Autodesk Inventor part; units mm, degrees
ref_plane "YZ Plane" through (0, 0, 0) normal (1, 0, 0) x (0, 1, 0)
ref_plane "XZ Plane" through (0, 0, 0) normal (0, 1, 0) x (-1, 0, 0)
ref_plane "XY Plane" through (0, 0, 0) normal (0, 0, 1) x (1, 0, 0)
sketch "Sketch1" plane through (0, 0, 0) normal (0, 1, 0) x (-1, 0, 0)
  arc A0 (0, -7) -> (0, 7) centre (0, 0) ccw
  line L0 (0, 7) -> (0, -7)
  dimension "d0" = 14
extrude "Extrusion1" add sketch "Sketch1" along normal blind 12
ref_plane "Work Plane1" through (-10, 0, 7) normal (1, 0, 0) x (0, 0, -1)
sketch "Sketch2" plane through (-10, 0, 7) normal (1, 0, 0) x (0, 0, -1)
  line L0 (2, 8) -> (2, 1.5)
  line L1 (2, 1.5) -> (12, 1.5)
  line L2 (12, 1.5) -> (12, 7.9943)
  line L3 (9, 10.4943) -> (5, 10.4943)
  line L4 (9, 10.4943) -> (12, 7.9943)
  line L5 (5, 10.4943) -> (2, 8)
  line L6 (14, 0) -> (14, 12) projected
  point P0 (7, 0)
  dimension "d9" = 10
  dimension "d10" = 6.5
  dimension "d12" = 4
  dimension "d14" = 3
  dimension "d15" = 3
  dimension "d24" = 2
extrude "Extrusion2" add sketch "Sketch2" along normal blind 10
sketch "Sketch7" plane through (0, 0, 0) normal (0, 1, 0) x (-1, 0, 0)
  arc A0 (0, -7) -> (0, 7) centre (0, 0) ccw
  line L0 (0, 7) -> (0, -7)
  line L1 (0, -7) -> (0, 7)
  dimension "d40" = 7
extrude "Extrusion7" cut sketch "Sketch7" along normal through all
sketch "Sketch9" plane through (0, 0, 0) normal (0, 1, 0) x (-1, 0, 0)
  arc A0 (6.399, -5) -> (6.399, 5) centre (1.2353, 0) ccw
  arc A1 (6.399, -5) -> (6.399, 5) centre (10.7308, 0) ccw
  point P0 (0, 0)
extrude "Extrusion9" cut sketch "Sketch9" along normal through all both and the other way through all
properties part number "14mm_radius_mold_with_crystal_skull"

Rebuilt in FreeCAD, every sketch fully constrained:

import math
import FreeCAD as App
import Part
import Sketcher
from FreeCAD import Vector
Q = App.Units.Quantity

doc = App.newDocument("Part")
params = doc.addObject("Spreadsheet::Sheet", "Params")
for row, (alias, value) in enumerate([
    ("sketch1_radius", "7 mm"),
    ("pad1_length", "12 mm"),
    ("sketch2_height", "10 mm"),
    ("sketch2_height2", "4 mm"),
    ("sketch2_width", "6.5 mm"),
    ("pad2_length", "10 mm"),
    ("sketch3_radius", "7 mm"),
], start=1):
    params.set(f"A{row}", alias)
    params.set(f"B{row}", "=" + value)
    params.setAlias(f"B{row}", alias)

body = doc.addObject("PartDesign::Body", "Body")

# Sketch on XZ plane
sketch1 = body.newObject("Sketcher::SketchObject", "Sketch")
sketch1.AttachmentSupport = (doc.getObject("XZ_Plane"), [""])
sketch1.MapMode = "FlatFace"
sketch1.addGeometry([
    Part.LineSegment(Vector(0, 7, 0), Vector(0, -7, 0)),
    Part.ArcOfCircle(Part.Circle(Vector(0, 0, 0), Vector(0, 0, 1), 7), math.radians(90), math.radians(270)),
], False)
sketch1.addConstraint([
    Sketcher.Constraint("Coincident", 0, 1, 1, 1),
    Sketcher.Constraint("Coincident", 1, 2, 0, 2),
    Sketcher.Constraint("Vertical", 0),
    Sketcher.Constraint("Coincident", 1, 3, -1, 1),
    Sketcher.Constraint("PointOnObject", 0, 1, -2),
    Sketcher.Constraint("Radius", 1, Q("7 mm")),
])
sketch1.setExpression("Constraints[5]", "Params.sketch1_radius")
pad1 = body.newObject("PartDesign::Pad", "Pad")
pad1.Profile = sketch1
pad1.setExpression("Length", "Params.pad1_length")
pad1.Reversed = True

# Sketch on YZ plane
sketch2 = body.newObject("Sketcher::SketchObject", "Sketch001")
sketch2.AttachmentSupport = (doc.getObject("YZ_Plane"), [""])
sketch2.MapMode = "FlatFace"
sketch2.AttachmentOffset = App.Placement(Vector(0, 0, -10), App.Rotation())
sketch2.addGeometry([
    Part.LineSegment(Vector(10.5, 2, 0), Vector(8, 5, 0)),  # 0
    Part.LineSegment(Vector(8, 5, 0), Vector(1.5, 5, 0)),  # 1
    Part.LineSegment(Vector(1.5, 5, 0), Vector(1.5, -5, 0)),  # 2
    Part.LineSegment(Vector(1.5, -5, 0), Vector(8, -5, 0)),  # 3
    Part.LineSegment(Vector(8, -5, 0), Vector(10.5, -2, 0)),  # 4
    Part.LineSegment(Vector(10.5, -2, 0), Vector(10.5, 2, 0)),  # 5
], False)
sketch2.addConstraint([
    Sketcher.Constraint("Coincident", 0, 2, 1, 1),
    Sketcher.Constraint("Coincident", 1, 2, 2, 1),
    Sketcher.Constraint("Coincident", 2, 2, 3, 1),
    Sketcher.Constraint("Coincident", 3, 2, 4, 1),
    Sketcher.Constraint("Coincident", 4, 2, 5, 1),
    Sketcher.Constraint("Coincident", 5, 2, 0, 1),
    Sketcher.Constraint("Horizontal", 1),
    Sketcher.Constraint("Vertical", 2),
    Sketcher.Constraint("Horizontal", 3),
    Sketcher.Constraint("Vertical", 5),
    Sketcher.Constraint("DistanceY", 2, 2, 2, 1, Q("10 mm")),
    Sketcher.Constraint("DistanceY", 5, 1, 5, 2, Q("4 mm")),
    Sketcher.Constraint("DistanceX", 1, 2, 1, 1, Q("6.5 mm")),
    Sketcher.Constraint("DistanceY", 4, 2, -1, 1, Q("2 mm")),
    Sketcher.Constraint("DistanceY", 3, 2, 4, 2, Q("3 mm")),
    Sketcher.Constraint("DistanceX", -1, 1, 0, 2, Q("8 mm")),
    Sketcher.Constraint("DistanceX", 3, 2, 4, 2, Q("2.5 mm")),
    Sketcher.Constraint("DistanceX", 3, 1, 3, 2, Q("6.4943 mm")),
])
sketch2.setExpression("Constraints[10]", "Params.sketch2_height")
sketch2.setExpression("Constraints[11]", "Params.sketch2_height2")
sketch2.setExpression("Constraints[12]", "Params.sketch2_width")
pad2 = body.newObject("PartDesign::Pad", "Pad001")
pad2.Profile = sketch2
pad2.setExpression("Length", "Params.pad2_length")

# Sketch on XZ plane
sketch3 = body.newObject("Sketcher::SketchObject", "Sketch002")
sketch3.AttachmentSupport = (doc.getObject("XZ_Plane"), [""])
sketch3.MapMode = "FlatFace"
sketch3.addGeometry([
    Part.LineSegment(Vector(0, 7, 0), Vector(0, -7, 0)),
    Part.ArcOfCircle(Part.Circle(Vector(0, 0, 0), Vector(0, 0, 1), 7), math.radians(90), math.radians(270)),
], False)
sketch3.addConstraint([
    Sketcher.Constraint("Coincident", 0, 1, 1, 1),
    Sketcher.Constraint("Coincident", 1, 2, 0, 2),
    Sketcher.Constraint("Vertical", 0),
    Sketcher.Constraint("Coincident", 1, 3, -1, 1),
    Sketcher.Constraint("PointOnObject", 0, 1, -2),
    Sketcher.Constraint("Radius", 1, Q("7 mm")),
])
sketch3.setExpression("Constraints[5]", "Params.sketch3_radius")
pocket1 = body.newObject("PartDesign::Pocket", "Pocket")
pocket1.Profile = sketch3
pocket1.Type = "ThroughAll"

# Sketch on XZ plane
sketch4 = body.newObject("Sketcher::SketchObject", "Sketch003")
sketch4.AttachmentSupport = (doc.getObject("XZ_Plane"), [""])
sketch4.MapMode = "FlatFace"
sketch4.addGeometry([
    Part.ArcOfCircle(Part.Circle(Vector(-1, 0, 0), Vector(0, 0, 1), 7), math.radians(136), math.radians(224)),
    Part.ArcOfCircle(Part.Circle(Vector(-11, 0, 0), Vector(0, 0, 1), 7), math.radians(49), math.radians(311)),
], False)
sketch4.addConstraint([
    Sketcher.Constraint("Coincident", 0, 1, 1, 1),
    Sketcher.Constraint("Coincident", 1, 2, 0, 2),
    Sketcher.Constraint("Symmetric", 0, 1, 1, 2, -1),
    Sketcher.Constraint("DistanceY", -1, 1, 0, 1, Q("5 mm")),
    Sketcher.Constraint("Radius", 0, Q("7.1878 mm")),
    Sketcher.Constraint("Radius", 1, Q("6.6155 mm")),
    Sketcher.Constraint("DistanceX", 0, 1, -1, 1, Q("6.399 mm")),
])
pocket2 = body.newObject("PartDesign::Pocket", "Pocket001")
pocket2.Profile = sketch4
pocket2.Type = "ThroughAll"

doc.recompute()
